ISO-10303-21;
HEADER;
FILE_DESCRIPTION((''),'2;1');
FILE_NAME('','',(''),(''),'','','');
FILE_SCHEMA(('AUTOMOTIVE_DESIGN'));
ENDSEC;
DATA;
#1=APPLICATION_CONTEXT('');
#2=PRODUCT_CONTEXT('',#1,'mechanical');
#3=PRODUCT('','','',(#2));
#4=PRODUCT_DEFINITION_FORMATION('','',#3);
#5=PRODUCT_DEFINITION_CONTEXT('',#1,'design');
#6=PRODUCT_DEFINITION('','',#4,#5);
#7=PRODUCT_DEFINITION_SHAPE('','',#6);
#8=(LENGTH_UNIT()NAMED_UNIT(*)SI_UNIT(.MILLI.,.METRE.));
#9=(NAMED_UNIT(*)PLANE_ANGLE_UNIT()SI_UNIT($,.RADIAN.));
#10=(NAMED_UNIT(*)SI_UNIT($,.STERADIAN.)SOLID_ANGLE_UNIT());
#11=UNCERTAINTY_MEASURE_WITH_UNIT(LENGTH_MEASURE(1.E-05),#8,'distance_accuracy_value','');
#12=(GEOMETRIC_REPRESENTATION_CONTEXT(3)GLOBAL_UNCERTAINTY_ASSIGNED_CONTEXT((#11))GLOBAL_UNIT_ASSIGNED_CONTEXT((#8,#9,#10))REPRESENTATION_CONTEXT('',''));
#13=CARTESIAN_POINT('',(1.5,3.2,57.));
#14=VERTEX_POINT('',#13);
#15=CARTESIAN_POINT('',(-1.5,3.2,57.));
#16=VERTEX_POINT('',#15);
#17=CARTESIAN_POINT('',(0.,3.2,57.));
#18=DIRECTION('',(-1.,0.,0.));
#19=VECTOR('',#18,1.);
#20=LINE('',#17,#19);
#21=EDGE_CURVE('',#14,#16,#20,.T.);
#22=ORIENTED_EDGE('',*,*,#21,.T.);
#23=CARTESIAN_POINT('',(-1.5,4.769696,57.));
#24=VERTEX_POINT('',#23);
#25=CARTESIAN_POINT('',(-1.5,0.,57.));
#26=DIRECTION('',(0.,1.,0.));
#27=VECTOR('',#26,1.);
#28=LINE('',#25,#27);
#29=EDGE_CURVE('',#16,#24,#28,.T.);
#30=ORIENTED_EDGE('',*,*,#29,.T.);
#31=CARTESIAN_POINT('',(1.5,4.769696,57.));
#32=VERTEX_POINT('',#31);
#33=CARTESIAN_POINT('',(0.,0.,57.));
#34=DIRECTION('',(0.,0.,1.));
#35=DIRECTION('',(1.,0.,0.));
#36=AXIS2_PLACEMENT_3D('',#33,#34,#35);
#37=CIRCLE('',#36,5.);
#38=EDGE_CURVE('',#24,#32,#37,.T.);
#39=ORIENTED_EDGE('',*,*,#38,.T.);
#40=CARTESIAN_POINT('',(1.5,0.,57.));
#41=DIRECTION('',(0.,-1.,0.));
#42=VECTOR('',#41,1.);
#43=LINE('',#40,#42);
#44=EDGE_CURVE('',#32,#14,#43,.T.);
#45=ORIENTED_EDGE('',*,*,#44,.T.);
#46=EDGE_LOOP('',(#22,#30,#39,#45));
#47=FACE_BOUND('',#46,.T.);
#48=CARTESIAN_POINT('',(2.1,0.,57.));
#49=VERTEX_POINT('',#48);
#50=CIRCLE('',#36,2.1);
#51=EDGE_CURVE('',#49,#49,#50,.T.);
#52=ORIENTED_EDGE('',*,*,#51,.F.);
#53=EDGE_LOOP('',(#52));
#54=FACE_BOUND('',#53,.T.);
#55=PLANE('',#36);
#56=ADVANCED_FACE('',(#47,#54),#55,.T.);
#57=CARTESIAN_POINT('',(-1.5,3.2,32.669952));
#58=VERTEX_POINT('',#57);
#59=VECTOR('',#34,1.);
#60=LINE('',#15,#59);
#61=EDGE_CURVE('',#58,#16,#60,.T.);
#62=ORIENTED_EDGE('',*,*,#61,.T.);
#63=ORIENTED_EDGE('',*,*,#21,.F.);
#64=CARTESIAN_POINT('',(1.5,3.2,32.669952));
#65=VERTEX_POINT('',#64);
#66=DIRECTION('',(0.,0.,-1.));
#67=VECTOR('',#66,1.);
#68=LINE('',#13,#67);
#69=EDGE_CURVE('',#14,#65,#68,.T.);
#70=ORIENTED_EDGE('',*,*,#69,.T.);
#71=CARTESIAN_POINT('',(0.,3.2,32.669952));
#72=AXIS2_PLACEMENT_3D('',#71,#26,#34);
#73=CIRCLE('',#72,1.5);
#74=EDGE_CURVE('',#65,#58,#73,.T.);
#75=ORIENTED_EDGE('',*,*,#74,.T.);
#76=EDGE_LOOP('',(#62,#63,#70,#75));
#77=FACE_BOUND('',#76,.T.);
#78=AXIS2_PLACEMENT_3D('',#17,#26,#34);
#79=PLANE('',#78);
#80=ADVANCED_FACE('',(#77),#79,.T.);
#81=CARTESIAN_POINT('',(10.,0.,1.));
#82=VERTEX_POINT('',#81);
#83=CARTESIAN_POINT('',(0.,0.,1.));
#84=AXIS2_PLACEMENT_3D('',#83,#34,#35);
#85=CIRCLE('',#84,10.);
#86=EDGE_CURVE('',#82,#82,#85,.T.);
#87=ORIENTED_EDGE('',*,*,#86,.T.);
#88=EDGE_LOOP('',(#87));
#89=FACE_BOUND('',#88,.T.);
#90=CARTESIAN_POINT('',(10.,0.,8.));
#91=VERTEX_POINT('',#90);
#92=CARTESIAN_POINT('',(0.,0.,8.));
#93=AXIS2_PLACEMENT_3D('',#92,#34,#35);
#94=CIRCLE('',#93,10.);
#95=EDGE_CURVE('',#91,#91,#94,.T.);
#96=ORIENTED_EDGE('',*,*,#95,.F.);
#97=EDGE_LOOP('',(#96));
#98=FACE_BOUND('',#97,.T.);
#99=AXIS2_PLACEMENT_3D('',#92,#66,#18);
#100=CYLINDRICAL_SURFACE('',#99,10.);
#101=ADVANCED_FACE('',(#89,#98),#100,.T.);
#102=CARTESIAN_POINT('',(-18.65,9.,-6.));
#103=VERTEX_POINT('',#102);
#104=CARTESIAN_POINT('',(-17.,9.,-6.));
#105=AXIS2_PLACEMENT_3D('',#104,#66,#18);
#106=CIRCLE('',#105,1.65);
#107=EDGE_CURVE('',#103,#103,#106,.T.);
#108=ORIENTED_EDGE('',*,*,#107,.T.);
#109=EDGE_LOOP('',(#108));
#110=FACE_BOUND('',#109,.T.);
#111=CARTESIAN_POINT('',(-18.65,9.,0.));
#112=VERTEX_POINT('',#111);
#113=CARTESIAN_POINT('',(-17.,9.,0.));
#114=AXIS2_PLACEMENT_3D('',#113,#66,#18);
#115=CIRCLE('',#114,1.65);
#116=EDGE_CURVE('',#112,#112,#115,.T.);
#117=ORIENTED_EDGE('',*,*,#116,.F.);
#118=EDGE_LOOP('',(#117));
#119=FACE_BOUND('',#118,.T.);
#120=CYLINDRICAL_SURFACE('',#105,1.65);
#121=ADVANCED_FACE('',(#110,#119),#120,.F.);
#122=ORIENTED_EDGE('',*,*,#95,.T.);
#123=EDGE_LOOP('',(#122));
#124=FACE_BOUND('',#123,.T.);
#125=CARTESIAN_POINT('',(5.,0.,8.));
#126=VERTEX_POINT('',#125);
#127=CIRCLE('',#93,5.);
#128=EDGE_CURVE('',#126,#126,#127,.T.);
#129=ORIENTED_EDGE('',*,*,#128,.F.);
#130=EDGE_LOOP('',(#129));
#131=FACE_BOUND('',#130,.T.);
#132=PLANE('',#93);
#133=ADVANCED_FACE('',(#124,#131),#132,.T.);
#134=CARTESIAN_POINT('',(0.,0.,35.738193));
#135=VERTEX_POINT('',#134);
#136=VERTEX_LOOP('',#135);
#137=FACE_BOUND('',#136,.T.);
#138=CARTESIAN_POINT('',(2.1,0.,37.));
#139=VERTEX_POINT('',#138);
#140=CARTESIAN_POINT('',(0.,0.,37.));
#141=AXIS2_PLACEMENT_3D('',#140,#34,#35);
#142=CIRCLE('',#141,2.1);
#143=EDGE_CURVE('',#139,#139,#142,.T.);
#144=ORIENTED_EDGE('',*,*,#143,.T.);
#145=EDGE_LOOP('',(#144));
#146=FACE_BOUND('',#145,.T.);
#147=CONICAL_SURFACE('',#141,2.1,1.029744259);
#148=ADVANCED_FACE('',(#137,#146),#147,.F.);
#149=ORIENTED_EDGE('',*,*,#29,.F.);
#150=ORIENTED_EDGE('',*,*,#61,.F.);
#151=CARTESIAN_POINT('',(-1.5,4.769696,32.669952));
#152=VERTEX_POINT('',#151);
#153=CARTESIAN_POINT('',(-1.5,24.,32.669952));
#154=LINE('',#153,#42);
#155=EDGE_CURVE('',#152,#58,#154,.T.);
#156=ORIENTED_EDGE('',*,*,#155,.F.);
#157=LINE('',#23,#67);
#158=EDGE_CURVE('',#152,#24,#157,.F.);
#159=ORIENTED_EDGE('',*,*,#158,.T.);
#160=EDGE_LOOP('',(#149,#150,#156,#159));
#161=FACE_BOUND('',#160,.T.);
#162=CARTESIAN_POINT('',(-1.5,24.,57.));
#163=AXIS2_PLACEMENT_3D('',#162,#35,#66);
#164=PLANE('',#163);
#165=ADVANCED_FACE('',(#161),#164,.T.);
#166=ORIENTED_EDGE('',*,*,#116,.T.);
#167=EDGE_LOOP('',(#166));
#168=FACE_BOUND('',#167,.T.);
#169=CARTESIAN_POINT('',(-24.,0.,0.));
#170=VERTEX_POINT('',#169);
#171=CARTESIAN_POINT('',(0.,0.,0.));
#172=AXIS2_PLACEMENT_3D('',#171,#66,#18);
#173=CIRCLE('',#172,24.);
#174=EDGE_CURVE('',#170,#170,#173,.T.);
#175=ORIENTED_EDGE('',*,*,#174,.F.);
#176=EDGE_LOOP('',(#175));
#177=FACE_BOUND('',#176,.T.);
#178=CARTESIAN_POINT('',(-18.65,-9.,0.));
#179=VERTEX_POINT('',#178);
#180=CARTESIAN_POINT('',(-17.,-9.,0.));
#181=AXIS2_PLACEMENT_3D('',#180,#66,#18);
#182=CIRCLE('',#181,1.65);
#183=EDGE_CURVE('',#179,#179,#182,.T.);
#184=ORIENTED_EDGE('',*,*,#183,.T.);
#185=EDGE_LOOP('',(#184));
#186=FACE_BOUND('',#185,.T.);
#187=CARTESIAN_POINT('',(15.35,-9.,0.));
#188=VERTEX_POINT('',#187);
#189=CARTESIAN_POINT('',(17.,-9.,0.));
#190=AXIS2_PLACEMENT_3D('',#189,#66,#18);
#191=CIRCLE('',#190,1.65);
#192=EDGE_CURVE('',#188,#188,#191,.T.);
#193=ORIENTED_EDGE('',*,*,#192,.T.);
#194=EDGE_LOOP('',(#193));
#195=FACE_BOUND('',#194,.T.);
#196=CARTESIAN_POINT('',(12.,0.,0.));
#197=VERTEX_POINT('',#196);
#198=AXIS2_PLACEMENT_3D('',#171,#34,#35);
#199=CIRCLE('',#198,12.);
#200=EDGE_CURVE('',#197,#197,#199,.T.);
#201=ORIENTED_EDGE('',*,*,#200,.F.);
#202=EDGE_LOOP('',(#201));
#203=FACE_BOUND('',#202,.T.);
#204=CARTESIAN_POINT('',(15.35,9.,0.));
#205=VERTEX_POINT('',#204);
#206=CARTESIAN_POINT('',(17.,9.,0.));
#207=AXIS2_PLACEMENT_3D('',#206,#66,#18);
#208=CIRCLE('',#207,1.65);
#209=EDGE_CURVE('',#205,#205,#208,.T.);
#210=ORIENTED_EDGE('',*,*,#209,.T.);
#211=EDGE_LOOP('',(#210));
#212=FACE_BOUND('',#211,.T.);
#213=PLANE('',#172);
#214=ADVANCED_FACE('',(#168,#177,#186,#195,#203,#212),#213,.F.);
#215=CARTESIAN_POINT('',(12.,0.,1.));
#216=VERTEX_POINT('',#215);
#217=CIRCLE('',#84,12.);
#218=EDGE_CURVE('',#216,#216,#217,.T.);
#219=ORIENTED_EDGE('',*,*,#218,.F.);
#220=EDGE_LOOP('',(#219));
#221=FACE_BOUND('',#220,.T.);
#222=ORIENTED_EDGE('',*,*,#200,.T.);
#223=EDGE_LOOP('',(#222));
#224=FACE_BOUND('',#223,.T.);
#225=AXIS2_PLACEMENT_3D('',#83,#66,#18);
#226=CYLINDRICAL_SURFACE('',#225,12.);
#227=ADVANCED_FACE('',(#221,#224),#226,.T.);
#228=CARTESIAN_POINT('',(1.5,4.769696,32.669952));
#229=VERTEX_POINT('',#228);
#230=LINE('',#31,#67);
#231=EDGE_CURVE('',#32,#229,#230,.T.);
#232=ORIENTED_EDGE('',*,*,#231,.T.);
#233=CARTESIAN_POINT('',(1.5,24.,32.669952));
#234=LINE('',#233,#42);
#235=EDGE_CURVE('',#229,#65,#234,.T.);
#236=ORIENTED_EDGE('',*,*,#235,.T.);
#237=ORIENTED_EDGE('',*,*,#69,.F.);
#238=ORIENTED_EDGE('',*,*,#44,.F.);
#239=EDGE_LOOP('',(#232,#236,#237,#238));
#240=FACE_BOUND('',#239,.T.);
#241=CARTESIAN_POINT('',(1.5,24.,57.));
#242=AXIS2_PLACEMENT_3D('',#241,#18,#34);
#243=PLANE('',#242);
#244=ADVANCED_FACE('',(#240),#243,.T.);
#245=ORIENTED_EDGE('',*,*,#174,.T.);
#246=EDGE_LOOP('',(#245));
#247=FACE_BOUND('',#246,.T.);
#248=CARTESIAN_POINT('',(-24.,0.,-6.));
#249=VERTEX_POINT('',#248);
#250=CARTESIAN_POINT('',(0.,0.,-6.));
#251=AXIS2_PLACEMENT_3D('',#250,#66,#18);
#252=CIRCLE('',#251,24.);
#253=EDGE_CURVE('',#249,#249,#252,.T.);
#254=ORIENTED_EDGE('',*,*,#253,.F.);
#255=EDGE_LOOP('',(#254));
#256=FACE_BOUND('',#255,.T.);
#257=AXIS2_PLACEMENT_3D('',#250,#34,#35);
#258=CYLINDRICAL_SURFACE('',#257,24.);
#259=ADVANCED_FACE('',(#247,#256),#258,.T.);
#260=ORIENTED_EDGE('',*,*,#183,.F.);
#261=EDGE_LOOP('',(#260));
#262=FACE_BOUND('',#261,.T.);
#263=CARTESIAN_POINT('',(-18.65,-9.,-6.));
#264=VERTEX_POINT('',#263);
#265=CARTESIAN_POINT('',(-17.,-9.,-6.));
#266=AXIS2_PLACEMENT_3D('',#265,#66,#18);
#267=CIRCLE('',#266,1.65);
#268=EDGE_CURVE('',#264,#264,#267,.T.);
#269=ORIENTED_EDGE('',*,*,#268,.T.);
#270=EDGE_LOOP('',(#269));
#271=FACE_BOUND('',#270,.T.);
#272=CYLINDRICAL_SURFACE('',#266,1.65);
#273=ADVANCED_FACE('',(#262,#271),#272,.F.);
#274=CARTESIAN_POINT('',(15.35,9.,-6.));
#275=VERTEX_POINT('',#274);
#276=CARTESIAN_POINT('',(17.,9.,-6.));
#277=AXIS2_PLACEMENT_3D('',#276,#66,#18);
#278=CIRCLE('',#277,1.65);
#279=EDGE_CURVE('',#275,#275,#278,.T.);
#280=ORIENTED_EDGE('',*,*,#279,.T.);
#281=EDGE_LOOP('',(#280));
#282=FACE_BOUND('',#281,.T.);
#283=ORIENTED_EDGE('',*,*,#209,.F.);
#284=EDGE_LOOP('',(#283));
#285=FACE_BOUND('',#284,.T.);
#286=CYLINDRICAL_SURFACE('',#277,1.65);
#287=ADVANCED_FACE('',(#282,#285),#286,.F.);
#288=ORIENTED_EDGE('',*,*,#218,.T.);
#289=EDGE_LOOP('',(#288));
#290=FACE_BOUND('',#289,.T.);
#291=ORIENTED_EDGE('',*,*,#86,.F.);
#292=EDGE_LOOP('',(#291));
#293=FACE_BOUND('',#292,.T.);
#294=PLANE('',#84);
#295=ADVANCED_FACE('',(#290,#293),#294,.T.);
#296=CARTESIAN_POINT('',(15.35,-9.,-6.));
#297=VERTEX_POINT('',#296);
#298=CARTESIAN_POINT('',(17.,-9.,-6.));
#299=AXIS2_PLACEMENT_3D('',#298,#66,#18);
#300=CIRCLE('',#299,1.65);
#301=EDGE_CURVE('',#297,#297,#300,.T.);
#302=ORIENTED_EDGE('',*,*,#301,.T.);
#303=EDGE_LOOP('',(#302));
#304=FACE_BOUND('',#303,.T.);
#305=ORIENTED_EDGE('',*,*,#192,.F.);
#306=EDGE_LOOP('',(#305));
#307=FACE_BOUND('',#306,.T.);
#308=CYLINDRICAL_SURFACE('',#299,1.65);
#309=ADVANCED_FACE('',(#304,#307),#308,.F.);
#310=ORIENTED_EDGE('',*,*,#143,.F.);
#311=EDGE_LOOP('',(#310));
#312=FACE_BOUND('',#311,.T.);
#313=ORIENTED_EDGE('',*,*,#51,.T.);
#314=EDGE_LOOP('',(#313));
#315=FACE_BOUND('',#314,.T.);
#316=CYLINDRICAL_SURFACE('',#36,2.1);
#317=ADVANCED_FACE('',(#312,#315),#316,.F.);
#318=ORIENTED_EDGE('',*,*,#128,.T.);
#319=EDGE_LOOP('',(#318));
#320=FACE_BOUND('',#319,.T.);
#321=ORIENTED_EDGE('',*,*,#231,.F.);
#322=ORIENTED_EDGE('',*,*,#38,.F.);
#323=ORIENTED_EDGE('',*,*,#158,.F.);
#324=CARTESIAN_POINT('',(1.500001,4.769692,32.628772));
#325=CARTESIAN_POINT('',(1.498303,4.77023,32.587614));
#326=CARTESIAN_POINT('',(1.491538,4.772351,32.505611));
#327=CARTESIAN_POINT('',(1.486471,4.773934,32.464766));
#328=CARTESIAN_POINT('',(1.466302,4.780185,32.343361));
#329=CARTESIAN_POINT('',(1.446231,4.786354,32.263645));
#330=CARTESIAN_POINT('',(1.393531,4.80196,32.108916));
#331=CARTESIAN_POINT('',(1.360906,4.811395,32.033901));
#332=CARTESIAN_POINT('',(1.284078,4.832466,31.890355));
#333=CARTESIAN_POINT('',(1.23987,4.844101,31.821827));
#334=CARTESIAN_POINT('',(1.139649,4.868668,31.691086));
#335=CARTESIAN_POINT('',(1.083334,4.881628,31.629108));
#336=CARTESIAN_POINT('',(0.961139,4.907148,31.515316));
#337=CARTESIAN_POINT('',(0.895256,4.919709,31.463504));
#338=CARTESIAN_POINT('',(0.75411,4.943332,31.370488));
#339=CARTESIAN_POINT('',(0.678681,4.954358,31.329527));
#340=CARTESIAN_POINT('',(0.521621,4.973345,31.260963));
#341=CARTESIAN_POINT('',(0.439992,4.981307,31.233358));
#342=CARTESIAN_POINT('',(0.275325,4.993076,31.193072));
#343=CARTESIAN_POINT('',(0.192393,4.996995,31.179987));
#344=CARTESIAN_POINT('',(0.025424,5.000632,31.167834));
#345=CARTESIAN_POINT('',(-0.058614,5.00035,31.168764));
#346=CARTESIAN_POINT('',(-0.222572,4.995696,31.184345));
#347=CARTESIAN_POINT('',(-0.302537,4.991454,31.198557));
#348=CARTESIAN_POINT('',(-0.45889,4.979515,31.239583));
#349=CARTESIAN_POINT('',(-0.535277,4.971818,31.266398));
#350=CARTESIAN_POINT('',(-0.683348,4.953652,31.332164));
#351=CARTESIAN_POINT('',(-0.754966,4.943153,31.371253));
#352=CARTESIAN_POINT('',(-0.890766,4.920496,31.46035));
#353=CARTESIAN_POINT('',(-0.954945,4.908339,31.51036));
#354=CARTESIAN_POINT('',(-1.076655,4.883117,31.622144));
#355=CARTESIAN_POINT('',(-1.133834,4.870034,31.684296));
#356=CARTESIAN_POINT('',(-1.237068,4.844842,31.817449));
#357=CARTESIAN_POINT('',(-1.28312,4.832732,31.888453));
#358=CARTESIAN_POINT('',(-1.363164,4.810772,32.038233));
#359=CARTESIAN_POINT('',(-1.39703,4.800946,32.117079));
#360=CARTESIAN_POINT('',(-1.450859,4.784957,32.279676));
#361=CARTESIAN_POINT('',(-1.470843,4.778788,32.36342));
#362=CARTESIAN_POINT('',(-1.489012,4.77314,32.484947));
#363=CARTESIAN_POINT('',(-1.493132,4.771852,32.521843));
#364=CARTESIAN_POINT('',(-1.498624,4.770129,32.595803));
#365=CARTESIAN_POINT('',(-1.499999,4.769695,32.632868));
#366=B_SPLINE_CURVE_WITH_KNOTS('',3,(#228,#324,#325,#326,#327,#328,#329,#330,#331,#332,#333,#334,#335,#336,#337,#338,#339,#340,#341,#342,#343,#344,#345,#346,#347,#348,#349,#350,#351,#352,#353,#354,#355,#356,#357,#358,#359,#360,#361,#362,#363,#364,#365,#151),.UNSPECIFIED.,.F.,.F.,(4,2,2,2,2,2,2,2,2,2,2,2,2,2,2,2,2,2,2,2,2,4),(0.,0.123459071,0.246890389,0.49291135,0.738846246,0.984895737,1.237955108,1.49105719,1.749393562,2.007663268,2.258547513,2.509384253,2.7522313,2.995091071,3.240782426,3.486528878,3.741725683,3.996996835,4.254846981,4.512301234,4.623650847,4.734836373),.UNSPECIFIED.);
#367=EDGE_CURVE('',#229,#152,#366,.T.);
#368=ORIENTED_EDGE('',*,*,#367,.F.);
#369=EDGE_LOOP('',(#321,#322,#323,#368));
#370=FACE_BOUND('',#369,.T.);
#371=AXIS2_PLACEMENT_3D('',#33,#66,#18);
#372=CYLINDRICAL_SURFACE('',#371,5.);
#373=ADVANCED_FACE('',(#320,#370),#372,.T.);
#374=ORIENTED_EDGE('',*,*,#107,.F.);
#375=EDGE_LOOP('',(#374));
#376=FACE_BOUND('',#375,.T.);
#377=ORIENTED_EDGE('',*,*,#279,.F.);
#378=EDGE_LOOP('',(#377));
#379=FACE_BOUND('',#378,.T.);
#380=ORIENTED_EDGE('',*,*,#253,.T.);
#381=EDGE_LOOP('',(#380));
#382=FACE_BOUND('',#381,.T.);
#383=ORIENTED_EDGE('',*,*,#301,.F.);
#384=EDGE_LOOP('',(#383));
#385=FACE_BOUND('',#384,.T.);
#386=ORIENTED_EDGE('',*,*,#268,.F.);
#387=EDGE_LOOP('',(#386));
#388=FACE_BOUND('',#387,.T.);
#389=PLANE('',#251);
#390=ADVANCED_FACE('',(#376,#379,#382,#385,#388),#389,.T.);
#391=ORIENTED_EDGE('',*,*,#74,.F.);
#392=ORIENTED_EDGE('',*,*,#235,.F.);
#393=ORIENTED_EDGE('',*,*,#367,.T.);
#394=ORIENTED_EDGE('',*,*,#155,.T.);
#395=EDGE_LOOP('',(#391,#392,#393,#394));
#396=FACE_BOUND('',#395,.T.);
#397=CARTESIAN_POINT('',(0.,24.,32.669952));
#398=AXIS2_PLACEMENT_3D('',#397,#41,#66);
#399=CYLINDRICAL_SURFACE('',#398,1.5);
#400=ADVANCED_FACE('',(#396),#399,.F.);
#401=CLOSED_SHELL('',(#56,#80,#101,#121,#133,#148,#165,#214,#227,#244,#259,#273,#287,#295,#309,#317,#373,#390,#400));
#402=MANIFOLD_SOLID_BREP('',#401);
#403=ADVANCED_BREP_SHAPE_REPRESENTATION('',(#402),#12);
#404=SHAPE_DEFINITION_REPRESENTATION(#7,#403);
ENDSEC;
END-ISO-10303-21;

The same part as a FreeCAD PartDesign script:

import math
import FreeCAD as App
import Part
import Sketcher

V = App.Vector
Q = App.Units.Quantity

doc = App.newDocument("Part")
body = doc.addObject("PartDesign::Body", "Body")

# Sketch on XY plane
sketch1 = body.newObject("Sketcher::SketchObject", "Sketch")
sketch1.AttachmentSupport = (doc.getObject("XY_Plane"), [""])
sketch1.MapMode = "FlatFace"
sketch1.addGeometry(Part.Circle(V(0, 0, 0), V(0, 0, 1), 12), False)
sketch1.addConstraint([
    Sketcher.Constraint("Coincident", 0, 3, -1, 1),
    Sketcher.Constraint("Diameter", 0, Q("24 mm")),
])
pad1 = body.newObject("PartDesign::Pad", "Pad")
pad1.Profile = sketch1
pad1.Length = 1

# Sketch on XY plane
sketch2 = body.newObject("Sketcher::SketchObject", "Sketch001")
sketch2.AttachmentSupport = (doc.getObject("XY_Plane"), [""])
sketch2.MapMode = "FlatFace"
sketch2.addGeometry(Part.Circle(V(0, 0, 0), V(0, 0, 1), 24), False)
sketch2.addConstraint([
    Sketcher.Constraint("Coincident", 0, 3, -1, 1),
    Sketcher.Constraint("Diameter", 0, Q("48 mm")),
])
pad2 = body.newObject("PartDesign::Pad", "Pad001")
pad2.Profile = sketch2
pad2.Length = 6
pad2.Reversed = True

# Sketch on XY plane
sketch3 = body.newObject("Sketcher::SketchObject", "Sketch002")
sketch3.AttachmentSupport = (doc.getObject("XY_Plane"), [""])
sketch3.MapMode = "FlatFace"
sketch3.AttachmentOffset = App.Placement(V(0, 0, -6), App.Rotation())
sketch3.addGeometry([
    Part.Circle(V(17, 9, 0), V(0, 0, 1), 1.6),
    Part.Circle(V(-17, -9, 0), V(0, 0, 1), 1.6),
    Part.Circle(V(-17, 9, 0), V(0, 0, 1), 1.6),
    Part.Circle(V(17, -9, 0), V(0, 0, 1), 1.6),
], False)
sketch3.addConstraint([
    Sketcher.Constraint("Equal", 0, 1),
    Sketcher.Constraint("Equal", 1, 2),
    Sketcher.Constraint("Equal", 2, 3),
    Sketcher.Constraint("Symmetric", 0, 3, 1, 3, -1, 1),
    Sketcher.Constraint("Symmetric", 2, 3, 3, 3, -1, 1),
    Sketcher.Constraint("Symmetric", 0, 3, 2, 3, -2),
    Sketcher.Constraint("Diameter", 0, Q("3.3 mm")),
    Sketcher.Constraint("DistanceX", -1, 1, 0, 3, Q("17 mm")),
    Sketcher.Constraint("DistanceY", -1, 1, 0, 3, Q("9 mm")),
])
doc.recompute()
hole = body.newObject("PartDesign::Hole", "Hole")
hole.Profile = sketch3
hole.ThreadType = "None"
hole.Diameter = 3.3
hole.DepthType = "Dimension"
hole.Depth = 6
hole.DrillPoint = "Angled"
hole.DrillPointAngle = 118
hole.Reversed = True

# Sketch on XY plane
sketch4 = body.newObject("Sketcher::SketchObject", "Sketch003")
sketch4.AttachmentSupport = (doc.getObject("XY_Plane"), [""])
sketch4.MapMode = "FlatFace"
sketch4.AttachmentOffset = App.Placement(V(0, 0, 1), App.Rotation())
sketch4.addGeometry(Part.Circle(V(0, 0, 0), V(0, 0, 1), 5), False)
sketch4.addConstraint([
    Sketcher.Constraint("Coincident", 0, 3, -1, 1),
    Sketcher.Constraint("Diameter", 0, Q("10 mm")),
])
pad3 = body.newObject("PartDesign::Pad", "Pad002")
pad3.Profile = sketch4
pad3.Length = 56

# Sketch on XY plane
sketch5 = body.newObject("Sketcher::SketchObject", "Sketch004")
sketch5.AttachmentSupport = (doc.getObject("XY_Plane"), [""])
sketch5.MapMode = "FlatFace"
sketch5.AttachmentOffset = App.Placement(V(0, 0, 57), App.Rotation())
sketch5.addGeometry(Part.Circle(V(0, 0, 0), V(0, 0, 1), 2.1), False)
sketch5.addConstraint([
    Sketcher.Constraint("Coincident", 0, 3, -1, 1),
    Sketcher.Constraint("Diameter", 0, Q("4.2 mm")),
])
doc.recompute()
hole2 = body.newObject("PartDesign::Hole", "Hole001")
hole2.Profile = sketch5
hole2.ThreadType = "None"
hole2.Diameter = 4.2
hole2.DepthType = "Dimension"
hole2.Depth = 20
hole2.DrillPoint = "Angled"
hole2.DrillPointAngle = 118

# Sketch on XZ plane
sketch6 = body.newObject("Sketcher::SketchObject", "Sketch005")
sketch6.AttachmentSupport = (doc.getObject("XZ_Plane"), [""])
sketch6.MapMode = "FlatFace"
sketch6.AttachmentOffset = App.Placement(V(0, 0, -3.2), App.Rotation())
sketch6.addGeometry([
    Part.LineSegment(V(-1.5, 32.7, 0), V(-1.5, 57, 0)),
    Part.ArcOfCircle(Part.Circle(V(0, 57, 0), V(0, 0, 1), 1.5), math.radians(0), math.radians(180)),
    Part.LineSegment(V(1.5, 57, 0), V(1.5, 32.7, 0)),
    Part.ArcOfCircle(Part.Circle(V(0, 32.7, 0), V(0, 0, 1), 1.5), math.radians(180), math.radians(360)),
], False)
sketch6.addConstraint([
    Sketcher.Constraint("Tangent", 0, 2, 1, 2),
    Sketcher.Constraint("Tangent", 1, 1, 2, 1),
    Sketcher.Constraint("Tangent", 2, 2, 3, 2),
    Sketcher.Constraint("Tangent", 3, 1, 0, 1),
    Sketcher.Constraint("Vertical", 0),
    Sketcher.Constraint("Vertical", 2),
    Sketcher.Constraint("PointOnObject", 1, 3, -2),
    Sketcher.Constraint("Radius", 1, Q("1.5 mm")),
    Sketcher.Constraint("DistanceY", -1, 1, 1, 3, Q("57 mm")),
    Sketcher.Constraint("DistanceY", 0, 1, 0, 2, Q("24.330048 mm")),
])
pocket1 = body.newObject("PartDesign::Pocket", "Pocket")
pocket1.Profile = sketch6
pocket1.Type = "ThroughAll"

# Sketch on XY plane
sketch7 = body.newObject("Sketcher::SketchObject", "Sketch006")
sketch7.AttachmentSupport = (doc.getObject("XY_Plane"), [""])
sketch7.MapMode = "FlatFace"
sketch7.AttachmentOffset = App.Placement(V(0, 0, 1), App.Rotation())
sketch7.addGeometry(Part.Circle(V(0, 0, 0), V(0, 0, 1), 10), False)
sketch7.addConstraint([
    Sketcher.Constraint("Coincident", 0, 3, -1, 1),
    Sketcher.Constraint("Diameter", 0, Q("20 mm")),
])
pad4 = body.newObject("PartDesign::Pad", "Pad003")
pad4.Profile = sketch7
pad4.Length = 7

doc.recompute()
